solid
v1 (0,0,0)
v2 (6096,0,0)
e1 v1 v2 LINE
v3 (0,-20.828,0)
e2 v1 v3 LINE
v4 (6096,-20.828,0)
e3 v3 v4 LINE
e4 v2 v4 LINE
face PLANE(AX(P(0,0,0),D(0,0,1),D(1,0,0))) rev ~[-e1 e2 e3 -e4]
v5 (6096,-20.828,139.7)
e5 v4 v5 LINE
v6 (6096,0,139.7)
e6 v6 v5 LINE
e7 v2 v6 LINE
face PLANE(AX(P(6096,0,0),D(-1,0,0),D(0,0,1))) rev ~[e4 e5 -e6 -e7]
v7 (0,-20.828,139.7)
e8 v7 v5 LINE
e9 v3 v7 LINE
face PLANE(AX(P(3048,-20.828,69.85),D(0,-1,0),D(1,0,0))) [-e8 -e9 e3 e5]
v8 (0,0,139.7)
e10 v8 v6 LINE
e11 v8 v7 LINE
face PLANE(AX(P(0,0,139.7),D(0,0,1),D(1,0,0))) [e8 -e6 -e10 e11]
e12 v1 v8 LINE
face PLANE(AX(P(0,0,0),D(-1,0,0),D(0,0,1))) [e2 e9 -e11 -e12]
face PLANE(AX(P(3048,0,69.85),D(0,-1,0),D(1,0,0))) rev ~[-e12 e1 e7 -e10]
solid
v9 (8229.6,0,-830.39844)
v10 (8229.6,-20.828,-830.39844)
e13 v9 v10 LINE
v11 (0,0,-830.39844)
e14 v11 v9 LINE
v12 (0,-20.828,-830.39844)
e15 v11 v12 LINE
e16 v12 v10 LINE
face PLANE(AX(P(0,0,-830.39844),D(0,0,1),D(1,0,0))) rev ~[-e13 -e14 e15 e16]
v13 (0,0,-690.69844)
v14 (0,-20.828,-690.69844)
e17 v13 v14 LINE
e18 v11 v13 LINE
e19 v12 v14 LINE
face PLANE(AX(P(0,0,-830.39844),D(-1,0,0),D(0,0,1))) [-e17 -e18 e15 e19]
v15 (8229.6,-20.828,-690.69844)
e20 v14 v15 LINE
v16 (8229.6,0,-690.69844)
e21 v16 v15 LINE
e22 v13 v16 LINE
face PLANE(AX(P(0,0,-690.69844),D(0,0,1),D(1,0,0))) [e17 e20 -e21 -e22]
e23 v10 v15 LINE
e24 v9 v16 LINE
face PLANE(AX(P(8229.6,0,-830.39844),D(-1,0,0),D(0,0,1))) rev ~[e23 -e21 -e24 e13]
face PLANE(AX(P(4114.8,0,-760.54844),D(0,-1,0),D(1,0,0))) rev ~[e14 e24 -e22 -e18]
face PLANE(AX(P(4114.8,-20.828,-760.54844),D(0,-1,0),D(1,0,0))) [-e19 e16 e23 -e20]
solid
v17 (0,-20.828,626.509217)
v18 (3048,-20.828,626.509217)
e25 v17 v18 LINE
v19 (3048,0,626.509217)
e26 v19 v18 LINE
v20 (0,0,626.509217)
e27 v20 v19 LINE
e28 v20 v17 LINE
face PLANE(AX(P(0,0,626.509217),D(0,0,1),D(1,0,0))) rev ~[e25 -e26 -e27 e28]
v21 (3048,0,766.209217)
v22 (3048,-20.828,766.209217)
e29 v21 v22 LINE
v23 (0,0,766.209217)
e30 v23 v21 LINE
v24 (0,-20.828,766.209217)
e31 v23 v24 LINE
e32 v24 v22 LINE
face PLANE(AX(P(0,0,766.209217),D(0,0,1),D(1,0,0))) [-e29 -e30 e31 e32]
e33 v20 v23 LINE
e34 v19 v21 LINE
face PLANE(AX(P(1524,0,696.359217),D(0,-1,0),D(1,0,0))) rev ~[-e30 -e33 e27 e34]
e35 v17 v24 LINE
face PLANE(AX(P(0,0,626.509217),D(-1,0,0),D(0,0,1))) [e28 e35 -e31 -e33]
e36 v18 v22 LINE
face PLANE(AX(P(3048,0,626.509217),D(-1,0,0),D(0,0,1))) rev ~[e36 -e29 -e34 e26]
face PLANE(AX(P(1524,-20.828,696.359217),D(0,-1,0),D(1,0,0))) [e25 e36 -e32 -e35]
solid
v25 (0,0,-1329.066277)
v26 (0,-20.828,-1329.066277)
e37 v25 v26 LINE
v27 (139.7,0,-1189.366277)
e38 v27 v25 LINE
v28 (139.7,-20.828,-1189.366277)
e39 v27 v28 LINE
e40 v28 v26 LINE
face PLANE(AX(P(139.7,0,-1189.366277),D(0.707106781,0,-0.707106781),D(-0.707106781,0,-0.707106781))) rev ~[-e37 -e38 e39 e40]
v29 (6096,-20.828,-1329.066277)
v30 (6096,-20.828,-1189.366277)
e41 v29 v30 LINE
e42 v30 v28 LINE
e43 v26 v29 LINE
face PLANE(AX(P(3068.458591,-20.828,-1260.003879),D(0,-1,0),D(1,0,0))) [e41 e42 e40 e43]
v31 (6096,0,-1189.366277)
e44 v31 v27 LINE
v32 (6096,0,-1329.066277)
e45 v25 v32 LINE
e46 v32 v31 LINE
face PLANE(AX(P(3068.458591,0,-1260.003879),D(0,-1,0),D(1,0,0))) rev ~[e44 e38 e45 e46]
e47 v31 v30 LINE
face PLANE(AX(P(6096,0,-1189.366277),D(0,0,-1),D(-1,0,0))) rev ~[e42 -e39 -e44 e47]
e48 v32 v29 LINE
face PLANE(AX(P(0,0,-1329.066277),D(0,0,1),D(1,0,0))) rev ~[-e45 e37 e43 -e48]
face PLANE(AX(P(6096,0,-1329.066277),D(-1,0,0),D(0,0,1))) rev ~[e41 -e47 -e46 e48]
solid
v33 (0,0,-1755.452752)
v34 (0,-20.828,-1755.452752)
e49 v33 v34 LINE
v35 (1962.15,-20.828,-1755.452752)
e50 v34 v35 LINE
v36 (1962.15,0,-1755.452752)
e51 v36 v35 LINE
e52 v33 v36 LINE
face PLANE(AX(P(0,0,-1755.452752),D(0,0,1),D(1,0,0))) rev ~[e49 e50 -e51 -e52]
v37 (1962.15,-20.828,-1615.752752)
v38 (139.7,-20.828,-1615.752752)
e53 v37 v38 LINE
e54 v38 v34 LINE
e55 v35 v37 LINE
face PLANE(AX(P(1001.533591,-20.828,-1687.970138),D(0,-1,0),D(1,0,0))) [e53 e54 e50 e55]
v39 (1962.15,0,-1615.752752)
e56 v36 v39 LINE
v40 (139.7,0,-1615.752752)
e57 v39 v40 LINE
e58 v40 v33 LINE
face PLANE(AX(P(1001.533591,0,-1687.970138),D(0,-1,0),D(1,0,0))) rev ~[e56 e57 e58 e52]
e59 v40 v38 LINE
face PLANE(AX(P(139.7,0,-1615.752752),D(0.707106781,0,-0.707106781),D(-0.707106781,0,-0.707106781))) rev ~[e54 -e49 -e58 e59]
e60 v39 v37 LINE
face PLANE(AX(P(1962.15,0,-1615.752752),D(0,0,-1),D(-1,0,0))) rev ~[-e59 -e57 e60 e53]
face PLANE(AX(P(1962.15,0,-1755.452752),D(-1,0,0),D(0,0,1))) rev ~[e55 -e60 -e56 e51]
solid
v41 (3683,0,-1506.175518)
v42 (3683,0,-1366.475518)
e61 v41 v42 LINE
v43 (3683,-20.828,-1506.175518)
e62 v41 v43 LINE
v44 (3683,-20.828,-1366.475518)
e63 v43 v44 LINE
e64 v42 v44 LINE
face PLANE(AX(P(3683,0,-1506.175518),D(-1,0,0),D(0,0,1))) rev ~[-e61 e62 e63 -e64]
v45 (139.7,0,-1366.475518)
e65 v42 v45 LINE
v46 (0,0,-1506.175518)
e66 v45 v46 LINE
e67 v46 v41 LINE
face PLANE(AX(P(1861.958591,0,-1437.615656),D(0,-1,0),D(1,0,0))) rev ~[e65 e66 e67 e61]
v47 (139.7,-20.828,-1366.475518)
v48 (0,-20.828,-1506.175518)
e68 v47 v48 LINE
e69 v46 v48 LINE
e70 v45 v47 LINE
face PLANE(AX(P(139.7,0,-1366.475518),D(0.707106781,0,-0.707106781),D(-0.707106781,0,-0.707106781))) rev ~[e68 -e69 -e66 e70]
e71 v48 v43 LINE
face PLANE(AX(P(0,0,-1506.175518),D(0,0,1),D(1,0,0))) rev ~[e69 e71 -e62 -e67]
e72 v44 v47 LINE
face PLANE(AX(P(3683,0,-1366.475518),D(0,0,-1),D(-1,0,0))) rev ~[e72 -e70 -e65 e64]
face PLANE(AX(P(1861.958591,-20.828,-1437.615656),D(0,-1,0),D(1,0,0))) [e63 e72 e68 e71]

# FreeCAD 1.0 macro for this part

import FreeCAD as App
import Part
import Sketcher
Q = App.Units.Quantity


def add_polygon(sketch, points):
    """Adds a closed chain of lines whose ends are joined by coincident constraints."""
    first, n = sketch.GeometryCount, len(points)
    for a, b in zip(points, points[1:] + points[:1]):
        sketch.addGeometry(Part.LineSegment(App.Vector(*a, 0), App.Vector(*b, 0)), False)
    for i in range(n):
        sketch.addConstraint(Sketcher.Constraint("Coincident", first + i, 2, first + (i + 1) % n, 1))

doc = App.newDocument("Part")
body = doc.addObject("PartDesign::Body", "Body")

# Sketch on XZ plane
sketch1 = body.newObject("Sketcher::SketchObject", "Sketch")
sketch1.AttachmentSupport = (doc.getObject("XZ_Plane"), [""])
sketch1.MapMode = "FlatFace"
add_polygon(sketch1, [(0, 140), (0, 0), (6096, 0), (6096, 140)])  # lines 0-3
sketch1.addConstraint([
    Sketcher.Constraint("Vertical", 0),
    Sketcher.Constraint("Horizontal", 1),
    Sketcher.Constraint("Vertical", 2),
    Sketcher.Constraint("Horizontal", 3),
    Sketcher.Constraint("Coincident", 0, 2, -1, 1),
    Sketcher.Constraint("DistanceX", 1, 1, 1, 2, Q("240 in")),
    Sketcher.Constraint("DistanceY", 0, 2, 0, 1, Q("5.5 in")),
])
pad1 = body.newObject("PartDesign::Pad", "Pad")
pad1.Profile = sketch1
pad1.Length = Q("0.82 in")
body2 = doc.addObject("PartDesign::Body", "Body001")

# Sketch on XZ plane
sketch2 = body2.newObject("Sketcher::SketchObject", "Sketch001")
sketch2.AttachmentSupport = (doc.getObject("XZ_Plane001"), [""])
sketch2.MapMode = "FlatFace"
add_polygon(sketch2, [(0, 766), (0, 627), (3048, 627), (3048, 766)])  # lines 0-3
sketch2.addConstraint([
    Sketcher.Constraint("Vertical", 0),
    Sketcher.Constraint("Horizontal", 1),
    Sketcher.Constraint("Vertical", 2),
    Sketcher.Constraint("Horizontal", 3),
    Sketcher.Constraint("PointOnObject", 0, 2, -2),
    Sketcher.Constraint("DistanceX", 1, 1, 1, 2, Q("120 in")),
    Sketcher.Constraint("DistanceY", 0, 2, 0, 1, Q("5.5 in")),
    Sketcher.Constraint("DistanceY", -1, 1, 0, 2, 626.509217),
])
pad2 = body2.newObject("PartDesign::Pad", "Pad001")
pad2.Profile = sketch2
pad2.Length = Q("0.82 in")
body3 = doc.addObject("PartDesign::Body", "Body002")

# Sketch on XZ plane
sketch3 = body3.newObject("Sketcher::SketchObject", "Sketch002")
sketch3.AttachmentSupport = (doc.getObject("XZ_Plane002"), [""])
sketch3.MapMode = "FlatFace"
add_polygon(sketch3, [(0, -691), (0, -830), (8230, -830), (8230, -691)])  # lines 0-3
sketch3.addConstraint([
    Sketcher.Constraint("Vertical", 0),
    Sketcher.Constraint("Horizontal", 1),
    Sketcher.Constraint("Vertical", 2),
    Sketcher.Constraint("Horizontal", 3),
    Sketcher.Constraint("PointOnObject", 0, 2, -2),
    Sketcher.Constraint("DistanceX", 1, 1, 1, 2, Q("324 in")),
    Sketcher.Constraint("DistanceY", 0, 2, 0, 1, Q("5.5 in")),
    Sketcher.Constraint("DistanceY", 0, 2, -1, 1, 830.39844),
])
pad3 = body3.newObject("PartDesign::Pad", "Pad002")
pad3.Profile = sketch3
pad3.Length = Q("0.82 in")
body4 = doc.addObject("PartDesign::Body", "Body003")

# Sketch on XZ plane
sketch4 = body4.newObject("Sketcher::SketchObject", "Sketch003")
sketch4.AttachmentSupport = (doc.getObject("XZ_Plane003"), [""])
sketch4.MapMode = "FlatFace"
add_polygon(sketch4, [(6096, -1189), (140, -1189), (0, -1329), (6096, -1329)])  # lines 0-3
sketch4.addConstraint([
    Sketcher.Constraint("Horizontal", 0),
    Sketcher.Constraint("Horizontal", 2),
    Sketcher.Constraint("Vertical", 3),
    Sketcher.Constraint("PointOnObject", 1, 2, -2),
    Sketcher.Constraint("DistanceX", 2, 1, 2, 2, Q("240 in")),
    Sketcher.Constraint("DistanceX", 0, 2, 0, 1, Q("234.5 in")),
    Sketcher.Constraint("DistanceY", 3, 1, 3, 2, Q("5.5 in")),
    Sketcher.Constraint("DistanceY", 0, 2, -1, 1, 1189.366277),
])
pad4 = body4.newObject("PartDesign::Pad", "Pad003")
pad4.Profile = sketch4
pad4.Length = Q("0.82 in")
body5 = doc.addObject("PartDesign::Body", "Body004")

# Sketch on XZ plane
sketch5 = body5.newObject("Sketcher::SketchObject", "Sketch004")
sketch5.AttachmentSupport = (doc.getObject("XZ_Plane004"), [""])
sketch5.MapMode = "FlatFace"
add_polygon(sketch5, [(1962, -1616), (140, -1616), (0, -1755), (1962, -1755)])  # lines 0-3
sketch5.addConstraint([
    Sketcher.Constraint("Horizontal", 0),
    Sketcher.Constraint("Horizontal", 2),
    Sketcher.Constraint("Vertical", 3),
    Sketcher.Constraint("PointOnObject", 1, 2, -2),
    Sketcher.Constraint("DistanceY", 3, 1, 3, 2, Q("5.5 in")),
    Sketcher.Constraint("Angle", 1, Q("-135 deg")),
    Sketcher.Constraint("DistanceX", 0, 2, 0, 1, Q("71.75 in")),
    Sketcher.Constraint("DistanceY", 0, 2, -1, 1, 1615.752752),
])
pad5 = body5.newObject("PartDesign::Pad", "Pad004")
pad5.Profile = sketch5
pad5.Length = Q("0.82 in")
body6 = doc.addObject("PartDesign::Body", "Body005")

# Sketch on XZ plane
sketch6 = body6.newObject("Sketcher::SketchObject", "Sketch005")
sketch6.AttachmentSupport = (doc.getObject("XZ_Plane005"), [""])
sketch6.MapMode = "FlatFace"
add_polygon(sketch6, [(3683, -1366), (140, -1366), (0, -1506), (3683, -1506)])  # lines 0-3
sketch6.addConstraint([
    Sketcher.Constraint("Horizontal", 0),
    Sketcher.Constraint("Horizontal", 2),
    Sketcher.Constraint("Vertical", 3),
    Sketcher.Constraint("PointOnObject", 1, 2, -2),
    Sketcher.Constraint("DistanceX", 2, 1, 2, 2, Q("145 in")),
    Sketcher.Constraint("DistanceX", 0, 2, 0, 1, Q("139.5 in")),
    Sketcher.Constraint("DistanceY", 3, 1, 3, 2, Q("5.5 in")),
    Sketcher.Constraint("DistanceY", 0, 2, -1, 1, 1366.475518),
])
pad6 = body6.newObject("PartDesign::Pad", "Pad005")
pad6.Profile = sketch6
pad6.Length = Q("0.82 in")

doc.recompute()
